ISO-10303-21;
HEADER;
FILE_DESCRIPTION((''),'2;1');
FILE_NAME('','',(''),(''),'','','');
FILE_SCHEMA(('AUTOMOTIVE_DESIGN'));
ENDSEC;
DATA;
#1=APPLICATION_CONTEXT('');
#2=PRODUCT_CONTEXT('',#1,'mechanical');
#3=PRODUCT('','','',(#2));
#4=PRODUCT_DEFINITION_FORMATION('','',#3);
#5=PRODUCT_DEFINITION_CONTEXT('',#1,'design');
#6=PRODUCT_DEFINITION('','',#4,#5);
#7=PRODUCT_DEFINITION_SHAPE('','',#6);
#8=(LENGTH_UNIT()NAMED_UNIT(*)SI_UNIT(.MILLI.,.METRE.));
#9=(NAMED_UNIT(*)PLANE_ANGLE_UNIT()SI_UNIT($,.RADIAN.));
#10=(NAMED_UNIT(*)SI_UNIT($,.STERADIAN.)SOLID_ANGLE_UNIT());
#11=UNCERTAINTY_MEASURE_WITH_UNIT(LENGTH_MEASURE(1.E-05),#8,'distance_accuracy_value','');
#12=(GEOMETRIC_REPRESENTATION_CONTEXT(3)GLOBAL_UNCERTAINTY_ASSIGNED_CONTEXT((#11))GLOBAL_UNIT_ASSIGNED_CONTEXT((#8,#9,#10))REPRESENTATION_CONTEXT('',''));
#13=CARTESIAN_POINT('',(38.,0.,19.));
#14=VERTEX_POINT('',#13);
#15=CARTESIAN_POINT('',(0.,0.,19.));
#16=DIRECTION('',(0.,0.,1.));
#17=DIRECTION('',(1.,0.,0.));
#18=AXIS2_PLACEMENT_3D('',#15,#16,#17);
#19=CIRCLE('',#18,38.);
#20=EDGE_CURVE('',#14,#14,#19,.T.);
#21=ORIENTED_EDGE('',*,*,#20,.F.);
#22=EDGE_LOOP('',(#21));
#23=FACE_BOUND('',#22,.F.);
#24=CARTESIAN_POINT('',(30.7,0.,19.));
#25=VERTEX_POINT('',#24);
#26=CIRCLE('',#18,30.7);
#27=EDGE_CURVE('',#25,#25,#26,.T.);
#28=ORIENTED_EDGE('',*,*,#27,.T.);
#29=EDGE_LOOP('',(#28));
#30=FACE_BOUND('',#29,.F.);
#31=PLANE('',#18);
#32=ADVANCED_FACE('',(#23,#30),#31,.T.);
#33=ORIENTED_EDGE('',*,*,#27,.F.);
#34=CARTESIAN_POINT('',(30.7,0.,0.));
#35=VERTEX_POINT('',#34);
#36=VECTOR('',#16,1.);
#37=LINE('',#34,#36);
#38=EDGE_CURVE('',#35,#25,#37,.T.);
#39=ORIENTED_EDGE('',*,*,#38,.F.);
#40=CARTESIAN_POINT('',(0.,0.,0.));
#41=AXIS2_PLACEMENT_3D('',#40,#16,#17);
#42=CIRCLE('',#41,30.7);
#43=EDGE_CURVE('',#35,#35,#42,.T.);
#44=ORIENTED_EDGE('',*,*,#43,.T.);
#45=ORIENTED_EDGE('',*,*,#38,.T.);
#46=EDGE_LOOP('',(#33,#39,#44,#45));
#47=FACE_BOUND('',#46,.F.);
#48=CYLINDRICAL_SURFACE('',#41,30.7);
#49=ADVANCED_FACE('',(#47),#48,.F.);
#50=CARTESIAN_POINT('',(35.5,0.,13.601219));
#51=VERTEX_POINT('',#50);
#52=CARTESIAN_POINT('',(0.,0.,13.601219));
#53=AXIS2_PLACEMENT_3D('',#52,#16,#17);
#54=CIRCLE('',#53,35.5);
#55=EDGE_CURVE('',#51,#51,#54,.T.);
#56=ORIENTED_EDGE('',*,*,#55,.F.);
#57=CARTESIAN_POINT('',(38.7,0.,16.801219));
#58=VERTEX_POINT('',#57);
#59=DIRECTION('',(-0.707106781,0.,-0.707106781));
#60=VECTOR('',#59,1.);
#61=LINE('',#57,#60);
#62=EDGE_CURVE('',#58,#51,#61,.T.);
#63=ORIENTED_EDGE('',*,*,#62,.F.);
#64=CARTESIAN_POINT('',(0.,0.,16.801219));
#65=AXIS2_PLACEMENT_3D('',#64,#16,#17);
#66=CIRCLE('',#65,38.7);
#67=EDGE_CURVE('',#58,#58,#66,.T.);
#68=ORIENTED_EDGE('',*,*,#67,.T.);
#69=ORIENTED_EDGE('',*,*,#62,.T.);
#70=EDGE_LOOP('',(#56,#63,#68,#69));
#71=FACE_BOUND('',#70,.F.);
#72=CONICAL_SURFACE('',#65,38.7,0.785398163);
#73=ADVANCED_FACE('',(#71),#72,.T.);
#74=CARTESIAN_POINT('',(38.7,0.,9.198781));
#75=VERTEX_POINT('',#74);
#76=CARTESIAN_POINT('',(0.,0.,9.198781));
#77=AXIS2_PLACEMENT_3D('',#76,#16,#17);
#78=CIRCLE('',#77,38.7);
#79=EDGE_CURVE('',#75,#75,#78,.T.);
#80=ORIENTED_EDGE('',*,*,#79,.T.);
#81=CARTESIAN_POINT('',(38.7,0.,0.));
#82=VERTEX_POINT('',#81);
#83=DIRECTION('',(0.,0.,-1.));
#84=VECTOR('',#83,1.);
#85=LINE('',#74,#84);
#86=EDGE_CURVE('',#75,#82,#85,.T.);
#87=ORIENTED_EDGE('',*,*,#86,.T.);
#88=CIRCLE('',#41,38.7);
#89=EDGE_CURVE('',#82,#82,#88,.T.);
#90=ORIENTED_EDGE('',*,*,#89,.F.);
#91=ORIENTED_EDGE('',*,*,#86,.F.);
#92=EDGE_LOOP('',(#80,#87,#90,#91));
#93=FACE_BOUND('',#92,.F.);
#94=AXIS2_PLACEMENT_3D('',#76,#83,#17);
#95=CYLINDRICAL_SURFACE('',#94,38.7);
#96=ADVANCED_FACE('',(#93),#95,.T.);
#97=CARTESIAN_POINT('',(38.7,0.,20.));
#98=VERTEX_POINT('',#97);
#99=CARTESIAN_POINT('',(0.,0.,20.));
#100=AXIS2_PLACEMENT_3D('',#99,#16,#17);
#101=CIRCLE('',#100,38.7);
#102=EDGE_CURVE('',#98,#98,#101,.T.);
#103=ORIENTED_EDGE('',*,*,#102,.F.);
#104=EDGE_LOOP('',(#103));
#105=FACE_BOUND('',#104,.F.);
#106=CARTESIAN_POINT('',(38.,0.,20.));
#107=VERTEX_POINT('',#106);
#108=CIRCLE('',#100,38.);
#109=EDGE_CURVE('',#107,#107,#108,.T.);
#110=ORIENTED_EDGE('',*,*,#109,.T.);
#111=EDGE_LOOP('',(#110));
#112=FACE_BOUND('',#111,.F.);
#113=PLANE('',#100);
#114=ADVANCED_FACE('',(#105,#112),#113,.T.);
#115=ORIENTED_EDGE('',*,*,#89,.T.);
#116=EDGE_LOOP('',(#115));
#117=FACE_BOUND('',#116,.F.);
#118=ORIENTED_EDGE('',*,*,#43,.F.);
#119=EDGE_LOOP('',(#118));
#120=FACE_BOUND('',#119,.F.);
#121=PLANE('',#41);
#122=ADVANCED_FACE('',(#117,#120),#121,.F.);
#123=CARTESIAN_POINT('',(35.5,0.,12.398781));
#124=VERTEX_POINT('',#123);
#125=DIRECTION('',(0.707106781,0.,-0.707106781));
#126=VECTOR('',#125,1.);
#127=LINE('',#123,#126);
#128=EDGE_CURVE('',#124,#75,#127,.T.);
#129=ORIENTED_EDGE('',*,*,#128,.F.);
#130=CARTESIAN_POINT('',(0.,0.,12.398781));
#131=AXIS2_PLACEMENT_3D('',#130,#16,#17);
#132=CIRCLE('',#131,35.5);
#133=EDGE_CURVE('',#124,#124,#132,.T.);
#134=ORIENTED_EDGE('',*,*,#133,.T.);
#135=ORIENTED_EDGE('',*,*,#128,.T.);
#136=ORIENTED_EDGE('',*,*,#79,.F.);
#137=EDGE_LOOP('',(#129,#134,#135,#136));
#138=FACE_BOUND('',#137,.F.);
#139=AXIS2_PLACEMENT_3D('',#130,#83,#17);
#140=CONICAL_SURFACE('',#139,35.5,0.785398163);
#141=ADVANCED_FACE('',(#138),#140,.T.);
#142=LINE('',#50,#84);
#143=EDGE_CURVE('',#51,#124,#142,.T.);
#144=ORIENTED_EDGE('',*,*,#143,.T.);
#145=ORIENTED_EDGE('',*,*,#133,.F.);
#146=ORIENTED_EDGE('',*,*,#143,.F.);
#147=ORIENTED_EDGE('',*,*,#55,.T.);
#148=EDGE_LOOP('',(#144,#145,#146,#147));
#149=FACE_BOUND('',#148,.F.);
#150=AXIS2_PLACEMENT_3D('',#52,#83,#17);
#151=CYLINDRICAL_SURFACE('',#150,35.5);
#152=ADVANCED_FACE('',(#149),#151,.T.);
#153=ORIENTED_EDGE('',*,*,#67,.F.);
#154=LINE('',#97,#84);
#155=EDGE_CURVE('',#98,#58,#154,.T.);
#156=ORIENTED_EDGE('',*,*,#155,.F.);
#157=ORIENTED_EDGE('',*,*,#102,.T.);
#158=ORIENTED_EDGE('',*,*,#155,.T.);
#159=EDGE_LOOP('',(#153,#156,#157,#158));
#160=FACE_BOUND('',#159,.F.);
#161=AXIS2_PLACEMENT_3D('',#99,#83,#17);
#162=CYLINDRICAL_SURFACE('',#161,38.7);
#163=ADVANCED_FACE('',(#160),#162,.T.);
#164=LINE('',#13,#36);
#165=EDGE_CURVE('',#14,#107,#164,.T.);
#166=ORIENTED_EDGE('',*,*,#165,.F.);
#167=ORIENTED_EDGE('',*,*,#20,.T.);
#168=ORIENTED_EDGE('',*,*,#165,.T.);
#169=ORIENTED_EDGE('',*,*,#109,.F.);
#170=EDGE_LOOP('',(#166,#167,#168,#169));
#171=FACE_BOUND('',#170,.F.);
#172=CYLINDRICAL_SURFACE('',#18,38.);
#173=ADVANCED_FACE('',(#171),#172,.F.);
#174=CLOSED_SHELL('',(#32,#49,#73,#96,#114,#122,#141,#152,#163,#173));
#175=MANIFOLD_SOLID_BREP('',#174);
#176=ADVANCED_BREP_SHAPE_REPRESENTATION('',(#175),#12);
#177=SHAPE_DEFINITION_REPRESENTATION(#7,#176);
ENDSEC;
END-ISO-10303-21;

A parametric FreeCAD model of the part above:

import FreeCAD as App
import Part
import Sketcher

V = App.Vector
Q = App.Units.Quantity

doc = App.newDocument("Part")
body = doc.addObject("PartDesign::Body", "Body")

sketch1 = body.newObject("Sketcher::SketchObject", "Sketch")
sketch1.AttachmentSupport = (doc.getObject("XZ_Plane"), [""])
sketch1.MapMode = "FlatFace"
sketch1.addGeometry([
    Part.LineSegment(V(38.7, 20, 0), V(38, 20, 0)),
    Part.LineSegment(V(38, 20, 0), V(38, 19, 0)),
    Part.LineSegment(V(38, 19, 0), V(30.7, 19, 0)),
    Part.LineSegment(V(30.7, 19, 0), V(30.7, 0, 0)),
    Part.LineSegment(V(30.7, 0, 0), V(38.7, 0, 0)),
    Part.LineSegment(V(38.7, 0, 0), V(38.7, 9.2, 0)),
    Part.LineSegment(V(38.7, 9.2, 0), V(35.5, 12.4, 0)),
    Part.LineSegment(V(35.5, 12.4, 0), V(35.5, 13.6, 0)),
    Part.LineSegment(V(35.5, 13.6, 0), V(38.7, 16.8, 0)),
    Part.LineSegment(V(38.7, 16.8, 0), V(38.7, 20, 0)),
], False)
sketch1.addConstraint([
    Sketcher.Constraint("Coincident", 0, 2, 1, 1),
    Sketcher.Constraint("Coincident", 1, 2, 2, 1),
    Sketcher.Constraint("Coincident", 2, 2, 3, 1),
    Sketcher.Constraint("Coincident", 3, 2, 4, 1),
    Sketcher.Constraint("Coincident", 4, 2, 5, 1),
    Sketcher.Constraint("Coincident", 5, 2, 6, 1),
    Sketcher.Constraint("Coincident", 6, 2, 7, 1),
    Sketcher.Constraint("Coincident", 7, 2, 8, 1),
    Sketcher.Constraint("Coincident", 8, 2, 9, 1),
    Sketcher.Constraint("Coincident", 9, 2, 0, 1),
    Sketcher.Constraint("Horizontal", 0),
    Sketcher.Constraint("Vertical", 1),
    Sketcher.Constraint("Horizontal", 2),
    Sketcher.Constraint("Vertical", 3),
    Sketcher.Constraint("Horizontal", 4),
    Sketcher.Constraint("Vertical", 5),
    Sketcher.Constraint("Vertical", 7),
    Sketcher.Constraint("Vertical", 9),
    Sketcher.Constraint("PointOnObject", 3, 2, -1),
    Sketcher.Constraint("Perpendicular", 6, 8),
    Sketcher.Constraint("Vertical", 5, 2, 8, 2),
    Sketcher.Constraint("Equal", 6, 8),
    Sketcher.Constraint("DistanceX", 4, 1, 4, 2, Q("8 mm")),
    Sketcher.Constraint("DistanceY", 1, 2, 1, 1, Q("1 mm")),
    Sketcher.Constraint("DistanceY", 3, 2, 3, 1, Q("19 mm")),
    Sketcher.Constraint("DistanceX", 0, 2, 0, 1, Q("0.7 mm")),
    Sketcher.Constraint("DistanceX", -1, 1, 0, 2, Q("38 mm")),
    Sketcher.Constraint("DistanceX", -1, 1, 6, 2, Q("35.5 mm")),
    Sketcher.Constraint("DistanceY", 5, 1, 5, 2, Q("9.198781 mm")),
    Sketcher.Constraint("DistanceY", 7, 1, 7, 2, Q("1.202438 mm")),
])
revolution = body.newObject("PartDesign::Revolution", "Revolution")
revolution.Profile = sketch1
revolution.ReferenceAxis = (sketch1, ["V_Axis"])
revolution.Angle = 360

doc.recompute()
